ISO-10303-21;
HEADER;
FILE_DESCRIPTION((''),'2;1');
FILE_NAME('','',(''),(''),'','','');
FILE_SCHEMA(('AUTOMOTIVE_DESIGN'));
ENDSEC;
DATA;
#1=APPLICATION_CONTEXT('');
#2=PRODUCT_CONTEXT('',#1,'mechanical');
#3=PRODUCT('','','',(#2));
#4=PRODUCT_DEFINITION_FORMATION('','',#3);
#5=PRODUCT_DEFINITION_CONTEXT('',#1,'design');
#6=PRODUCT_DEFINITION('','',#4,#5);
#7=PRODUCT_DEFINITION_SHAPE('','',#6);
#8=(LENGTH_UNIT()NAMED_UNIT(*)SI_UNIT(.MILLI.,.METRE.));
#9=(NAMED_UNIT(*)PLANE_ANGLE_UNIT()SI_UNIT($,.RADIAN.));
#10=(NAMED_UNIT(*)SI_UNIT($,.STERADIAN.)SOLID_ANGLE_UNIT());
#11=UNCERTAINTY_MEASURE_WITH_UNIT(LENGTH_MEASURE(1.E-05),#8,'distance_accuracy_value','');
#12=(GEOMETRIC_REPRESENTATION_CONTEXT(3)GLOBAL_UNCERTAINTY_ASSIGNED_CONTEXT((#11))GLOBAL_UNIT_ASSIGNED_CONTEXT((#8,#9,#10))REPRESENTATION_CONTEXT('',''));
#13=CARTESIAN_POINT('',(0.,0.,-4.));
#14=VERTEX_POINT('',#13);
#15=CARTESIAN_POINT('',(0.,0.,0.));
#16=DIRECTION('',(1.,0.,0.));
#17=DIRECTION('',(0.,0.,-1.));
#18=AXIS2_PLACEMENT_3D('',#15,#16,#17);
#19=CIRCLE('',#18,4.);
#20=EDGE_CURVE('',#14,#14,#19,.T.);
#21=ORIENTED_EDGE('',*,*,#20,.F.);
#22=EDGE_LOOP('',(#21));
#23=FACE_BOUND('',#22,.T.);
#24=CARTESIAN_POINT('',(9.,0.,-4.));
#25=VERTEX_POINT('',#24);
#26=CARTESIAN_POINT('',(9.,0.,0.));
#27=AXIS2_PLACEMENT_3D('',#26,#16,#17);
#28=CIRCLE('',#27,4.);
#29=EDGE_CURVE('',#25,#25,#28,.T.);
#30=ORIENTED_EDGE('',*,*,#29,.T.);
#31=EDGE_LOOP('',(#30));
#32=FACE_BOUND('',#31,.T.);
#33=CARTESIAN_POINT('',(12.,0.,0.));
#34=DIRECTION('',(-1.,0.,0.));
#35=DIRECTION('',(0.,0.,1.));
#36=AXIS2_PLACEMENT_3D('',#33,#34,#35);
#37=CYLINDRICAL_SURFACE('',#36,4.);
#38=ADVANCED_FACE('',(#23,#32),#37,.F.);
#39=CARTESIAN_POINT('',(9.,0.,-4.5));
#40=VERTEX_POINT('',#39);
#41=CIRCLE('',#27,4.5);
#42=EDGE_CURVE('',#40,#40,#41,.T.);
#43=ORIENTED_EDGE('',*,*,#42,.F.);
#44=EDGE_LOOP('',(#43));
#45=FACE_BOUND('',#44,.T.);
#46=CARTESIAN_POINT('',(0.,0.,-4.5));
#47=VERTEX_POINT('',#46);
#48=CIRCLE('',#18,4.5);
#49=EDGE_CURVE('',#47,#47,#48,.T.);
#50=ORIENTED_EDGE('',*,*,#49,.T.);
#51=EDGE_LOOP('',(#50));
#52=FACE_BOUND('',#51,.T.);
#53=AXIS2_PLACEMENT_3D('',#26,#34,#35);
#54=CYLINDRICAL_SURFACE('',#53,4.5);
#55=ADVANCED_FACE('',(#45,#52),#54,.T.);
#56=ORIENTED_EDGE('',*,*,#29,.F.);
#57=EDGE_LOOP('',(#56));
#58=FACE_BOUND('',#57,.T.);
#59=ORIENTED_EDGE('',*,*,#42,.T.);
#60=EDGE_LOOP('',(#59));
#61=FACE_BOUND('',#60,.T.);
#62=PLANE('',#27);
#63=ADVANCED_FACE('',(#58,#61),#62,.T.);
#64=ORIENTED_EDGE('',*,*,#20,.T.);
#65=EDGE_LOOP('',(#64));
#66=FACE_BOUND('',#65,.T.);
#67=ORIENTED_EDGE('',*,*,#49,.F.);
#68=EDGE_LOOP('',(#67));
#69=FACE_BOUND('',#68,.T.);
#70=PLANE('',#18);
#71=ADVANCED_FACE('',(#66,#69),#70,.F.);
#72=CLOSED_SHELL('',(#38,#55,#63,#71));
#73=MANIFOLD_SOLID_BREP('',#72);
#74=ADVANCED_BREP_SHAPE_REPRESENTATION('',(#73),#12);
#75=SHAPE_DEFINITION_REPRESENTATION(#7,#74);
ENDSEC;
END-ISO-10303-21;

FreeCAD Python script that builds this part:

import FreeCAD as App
import Part
import Sketcher

V = App.Vector
Q = App.Units.Quantity

doc = App.newDocument("Part")
body = doc.addObject("PartDesign::Body", "Body")

sketch1 = body.newObject("Sketcher::SketchObject", "Sketch")
sketch1.AttachmentSupport = (doc.getObject("YZ_Plane"), [""])
sketch1.MapMode = "FlatFace"
sketch1.addGeometry(Part.Circle(V(0, 0, 0), V(0, 0, 1), 4.5), False)
sketch1.addConstraint([
    Sketcher.Constraint("Coincident", 0, 3, -1, 1),
    Sketcher.Constraint("Diameter", 0, Q("9 mm")),
])
pad1 = body.newObject("PartDesign::Pad", "Pad")
pad1.Profile = sketch1
pad1.Length = 9

sketch2 = body.newObject("Sketcher::SketchObject", "Sketch001")
sketch2.AttachmentSupport = (doc.getObject("YZ_Plane"), [""])
sketch2.MapMode = "FlatFace"
sketch2.addGeometry(Part.Circle(V(0, 0, 0), V(0, 0, 1), 4), False)
sketch2.addConstraint([
    Sketcher.Constraint("Coincident", 0, 3, -1, 1),
    Sketcher.Constraint("Diameter", 0, Q("8 mm")),
])
pocket1 = body.newObject("PartDesign::Pocket", "Pocket")
pocket1.Profile = sketch2
pocket1.Type = "ThroughAll"
pocket1.Midplane = True

doc.recompute()
